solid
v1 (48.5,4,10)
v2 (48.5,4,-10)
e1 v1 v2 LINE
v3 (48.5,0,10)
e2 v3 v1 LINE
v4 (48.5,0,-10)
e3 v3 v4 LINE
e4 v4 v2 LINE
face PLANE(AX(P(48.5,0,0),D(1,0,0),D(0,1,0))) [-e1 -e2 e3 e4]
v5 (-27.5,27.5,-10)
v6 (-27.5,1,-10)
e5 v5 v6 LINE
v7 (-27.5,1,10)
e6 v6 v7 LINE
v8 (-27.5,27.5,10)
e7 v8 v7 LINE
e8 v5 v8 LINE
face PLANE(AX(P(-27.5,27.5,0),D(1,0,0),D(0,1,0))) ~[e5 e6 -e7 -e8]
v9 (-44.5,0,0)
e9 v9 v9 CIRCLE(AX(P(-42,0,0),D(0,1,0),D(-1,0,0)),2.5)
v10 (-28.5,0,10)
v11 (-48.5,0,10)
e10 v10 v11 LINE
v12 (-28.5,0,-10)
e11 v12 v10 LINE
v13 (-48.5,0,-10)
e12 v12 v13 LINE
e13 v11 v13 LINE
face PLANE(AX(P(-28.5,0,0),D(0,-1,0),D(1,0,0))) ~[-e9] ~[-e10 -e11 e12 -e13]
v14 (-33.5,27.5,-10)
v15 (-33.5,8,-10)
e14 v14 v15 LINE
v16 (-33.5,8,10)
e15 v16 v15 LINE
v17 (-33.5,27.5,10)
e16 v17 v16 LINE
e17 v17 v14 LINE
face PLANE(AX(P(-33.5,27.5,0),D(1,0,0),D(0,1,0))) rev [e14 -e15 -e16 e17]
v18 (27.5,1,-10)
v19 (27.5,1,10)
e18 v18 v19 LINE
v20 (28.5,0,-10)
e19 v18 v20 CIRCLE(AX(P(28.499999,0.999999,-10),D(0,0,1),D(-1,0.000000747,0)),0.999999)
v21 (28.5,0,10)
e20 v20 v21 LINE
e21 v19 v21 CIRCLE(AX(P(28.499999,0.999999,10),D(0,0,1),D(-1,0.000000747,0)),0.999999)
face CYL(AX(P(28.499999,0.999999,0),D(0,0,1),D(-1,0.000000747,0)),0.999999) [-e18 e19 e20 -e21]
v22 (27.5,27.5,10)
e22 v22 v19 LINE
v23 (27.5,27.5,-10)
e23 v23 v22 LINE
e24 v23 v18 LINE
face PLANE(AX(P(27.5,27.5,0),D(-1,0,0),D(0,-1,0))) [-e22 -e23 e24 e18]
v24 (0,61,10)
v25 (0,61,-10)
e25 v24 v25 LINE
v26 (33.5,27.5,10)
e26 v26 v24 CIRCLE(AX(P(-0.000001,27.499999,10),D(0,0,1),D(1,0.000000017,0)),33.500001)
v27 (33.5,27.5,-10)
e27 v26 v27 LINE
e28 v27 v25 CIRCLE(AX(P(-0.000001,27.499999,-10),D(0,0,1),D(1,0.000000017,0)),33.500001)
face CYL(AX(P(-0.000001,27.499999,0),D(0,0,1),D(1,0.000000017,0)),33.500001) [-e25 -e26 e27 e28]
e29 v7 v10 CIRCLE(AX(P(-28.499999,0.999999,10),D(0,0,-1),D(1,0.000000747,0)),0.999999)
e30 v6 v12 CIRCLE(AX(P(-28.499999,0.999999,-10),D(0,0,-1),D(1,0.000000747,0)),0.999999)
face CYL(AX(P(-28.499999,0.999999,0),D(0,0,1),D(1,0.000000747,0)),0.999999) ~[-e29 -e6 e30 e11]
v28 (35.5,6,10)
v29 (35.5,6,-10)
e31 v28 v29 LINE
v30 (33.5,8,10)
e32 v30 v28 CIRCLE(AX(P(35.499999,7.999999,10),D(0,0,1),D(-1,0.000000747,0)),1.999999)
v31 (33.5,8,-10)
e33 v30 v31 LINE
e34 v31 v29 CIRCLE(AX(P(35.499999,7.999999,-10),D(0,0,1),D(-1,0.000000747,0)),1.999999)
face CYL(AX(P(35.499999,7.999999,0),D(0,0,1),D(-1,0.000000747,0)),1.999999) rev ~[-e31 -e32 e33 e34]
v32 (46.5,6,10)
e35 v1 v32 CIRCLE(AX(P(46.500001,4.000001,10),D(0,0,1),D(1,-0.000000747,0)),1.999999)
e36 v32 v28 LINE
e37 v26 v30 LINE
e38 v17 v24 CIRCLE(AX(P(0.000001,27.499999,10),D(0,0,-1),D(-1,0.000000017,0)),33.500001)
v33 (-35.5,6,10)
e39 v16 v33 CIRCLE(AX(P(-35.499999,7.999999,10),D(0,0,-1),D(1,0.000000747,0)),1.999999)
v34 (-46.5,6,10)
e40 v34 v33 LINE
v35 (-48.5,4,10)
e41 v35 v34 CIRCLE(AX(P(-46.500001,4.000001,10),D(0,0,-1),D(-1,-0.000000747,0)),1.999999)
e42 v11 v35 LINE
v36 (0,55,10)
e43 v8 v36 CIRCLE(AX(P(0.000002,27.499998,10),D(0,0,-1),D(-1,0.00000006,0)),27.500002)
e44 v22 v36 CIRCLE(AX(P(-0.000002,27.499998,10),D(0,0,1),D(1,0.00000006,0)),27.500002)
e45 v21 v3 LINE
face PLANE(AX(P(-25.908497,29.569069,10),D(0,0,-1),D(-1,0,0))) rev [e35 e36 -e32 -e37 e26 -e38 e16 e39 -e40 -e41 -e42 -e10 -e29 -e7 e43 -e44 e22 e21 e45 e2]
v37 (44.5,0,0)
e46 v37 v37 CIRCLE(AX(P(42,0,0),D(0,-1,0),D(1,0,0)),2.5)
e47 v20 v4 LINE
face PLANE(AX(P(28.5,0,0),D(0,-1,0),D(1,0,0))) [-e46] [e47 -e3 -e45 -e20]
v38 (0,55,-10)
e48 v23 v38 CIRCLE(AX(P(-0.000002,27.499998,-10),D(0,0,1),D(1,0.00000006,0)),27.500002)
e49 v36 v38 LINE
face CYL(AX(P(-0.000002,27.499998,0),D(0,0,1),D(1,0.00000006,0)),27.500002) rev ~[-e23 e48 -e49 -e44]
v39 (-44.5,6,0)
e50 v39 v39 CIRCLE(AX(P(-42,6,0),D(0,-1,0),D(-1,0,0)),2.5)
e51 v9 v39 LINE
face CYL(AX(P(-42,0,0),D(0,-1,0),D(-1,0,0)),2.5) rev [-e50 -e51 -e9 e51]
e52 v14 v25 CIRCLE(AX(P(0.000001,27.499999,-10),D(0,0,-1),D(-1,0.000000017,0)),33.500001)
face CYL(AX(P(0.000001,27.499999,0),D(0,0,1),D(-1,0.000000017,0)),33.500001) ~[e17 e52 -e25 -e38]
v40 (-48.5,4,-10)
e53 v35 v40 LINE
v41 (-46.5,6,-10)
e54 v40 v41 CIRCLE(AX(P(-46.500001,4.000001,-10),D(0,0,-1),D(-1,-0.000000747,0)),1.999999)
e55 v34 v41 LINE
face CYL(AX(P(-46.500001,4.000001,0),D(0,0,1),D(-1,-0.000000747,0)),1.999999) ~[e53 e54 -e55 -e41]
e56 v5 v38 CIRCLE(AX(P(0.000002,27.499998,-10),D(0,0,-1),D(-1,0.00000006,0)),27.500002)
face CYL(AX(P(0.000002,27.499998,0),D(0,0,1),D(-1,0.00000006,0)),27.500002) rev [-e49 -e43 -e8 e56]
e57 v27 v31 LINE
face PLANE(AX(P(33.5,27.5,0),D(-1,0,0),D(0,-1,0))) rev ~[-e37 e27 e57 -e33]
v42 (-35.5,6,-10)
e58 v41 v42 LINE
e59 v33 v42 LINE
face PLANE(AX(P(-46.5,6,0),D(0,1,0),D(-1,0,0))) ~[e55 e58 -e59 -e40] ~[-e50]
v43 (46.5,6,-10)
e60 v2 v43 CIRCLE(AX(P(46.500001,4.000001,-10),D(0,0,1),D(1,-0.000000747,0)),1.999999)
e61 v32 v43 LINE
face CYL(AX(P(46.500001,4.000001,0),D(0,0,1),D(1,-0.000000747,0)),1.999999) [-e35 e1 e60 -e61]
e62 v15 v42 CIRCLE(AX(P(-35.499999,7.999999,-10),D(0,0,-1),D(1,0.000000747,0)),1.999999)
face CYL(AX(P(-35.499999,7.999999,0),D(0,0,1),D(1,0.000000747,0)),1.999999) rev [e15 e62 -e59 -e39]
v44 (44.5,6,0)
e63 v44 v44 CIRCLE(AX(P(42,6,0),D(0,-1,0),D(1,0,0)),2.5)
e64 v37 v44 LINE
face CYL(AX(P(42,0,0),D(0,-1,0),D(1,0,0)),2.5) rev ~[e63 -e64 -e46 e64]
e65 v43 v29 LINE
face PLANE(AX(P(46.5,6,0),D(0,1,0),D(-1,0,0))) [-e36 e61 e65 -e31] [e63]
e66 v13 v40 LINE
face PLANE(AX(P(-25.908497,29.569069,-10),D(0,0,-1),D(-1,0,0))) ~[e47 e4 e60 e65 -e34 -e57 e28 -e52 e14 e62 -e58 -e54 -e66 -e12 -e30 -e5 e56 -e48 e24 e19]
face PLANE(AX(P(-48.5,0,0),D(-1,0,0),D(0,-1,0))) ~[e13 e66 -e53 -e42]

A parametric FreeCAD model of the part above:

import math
import FreeCAD as App
import Part
import Sketcher
from FreeCAD import Vector
Q = App.Units.Quantity

doc = App.newDocument("Part")
body = doc.addObject("PartDesign::Body", "Body")

# Sketch on XY plane
sketch1 = body.newObject("Sketcher::SketchObject", "Sketch")
sketch1.AttachmentSupport = (doc.getObject("XY_Plane"), [""])
sketch1.MapMode = "FlatFace"
sketch1.addGeometry([
    Part.ArcOfCircle(Part.Circle(Vector(0, 27.5, 0), Vector(0, 0, 1), 27.5), math.radians(0), math.radians(90)),  # 0
    Part.LineSegment(Vector(27.5, 27.5, 0), Vector(27.5, 1, 0)),  # 1
    Part.ArcOfCircle(Part.Circle(Vector(28.5, 1, 0), Vector(0, 0, 1), 1), math.radians(180), math.radians(270)),  # 2
    Part.LineSegment(Vector(28.5, 0, 0), Vector(48.5, 0, 0)),  # 3
    Part.LineSegment(Vector(48.5, 0, 0), Vector(48.5, 4, 0)),  # 4
    Part.ArcOfCircle(Part.Circle(Vector(46.5, 4, 0), Vector(0, 0, 1), 2), math.radians(0), math.radians(90)),  # 5
    Part.LineSegment(Vector(46.5, 6, 0), Vector(35.5, 6, 0)),  # 6
    Part.ArcOfCircle(Part.Circle(Vector(35.5, 8, 0), Vector(0, 0, 1), 2), math.radians(180), math.radians(270)),  # 7
    Part.LineSegment(Vector(33.5, 8, 0), Vector(33.5, 27.5, 0)),  # 8
    Part.ArcOfCircle(Part.Circle(Vector(0, 27.5, 0), Vector(0, 0, 1), 33.5), math.radians(0), math.radians(90)),  # 9
    Part.LineSegment(Vector(0, 61, 0), Vector(0, 55, 0)),  # 10
], False)
sketch1.addConstraint([
    Sketcher.Constraint("Tangent", 0, 1, 1, 1),
    Sketcher.Constraint("Tangent", 1, 2, 2, 1),
    Sketcher.Constraint("Tangent", 2, 2, 3, 1),
    Sketcher.Constraint("Coincident", 3, 2, 4, 1),
    Sketcher.Constraint("Tangent", 4, 2, 5, 1),
    Sketcher.Constraint("Tangent", 5, 2, 6, 1),
    Sketcher.Constraint("Tangent", 6, 2, 7, 2),
    Sketcher.Constraint("Tangent", 7, 1, 8, 1),
    Sketcher.Constraint("Tangent", 8, 2, 9, 1),
    Sketcher.Constraint("Coincident", 9, 2, 10, 1),
    Sketcher.Constraint("Coincident", 10, 2, 0, 2),
    Sketcher.Constraint("Vertical", 1),
    Sketcher.Constraint("Horizontal", 3),
    Sketcher.Constraint("Vertical", 4),
    Sketcher.Constraint("Horizontal", 6),
    Sketcher.Constraint("Vertical", 8),
    Sketcher.Constraint("Vertical", 10),
    Sketcher.Constraint("Coincident", 9, 3, 0, 3),
    Sketcher.Constraint("Equal", 5, 7),
    Sketcher.Constraint("PointOnObject", 0, 3, -2),
    Sketcher.Constraint("PointOnObject", 2, 2, -1),
    Sketcher.Constraint("PointOnObject", 9, 2, -2),
    Sketcher.Constraint("Radius", 2, Q("0.999999 mm")),
    Sketcher.Constraint("Radius", 5, Q("1.999999 mm")),
    Sketcher.Constraint("Radius", 0, Q("27.500002 mm")),
    Sketcher.Constraint("Radius", 9, Q("33.500001 mm")),
    Sketcher.Constraint("DistanceX", 3, 1, 3, 2, Q("20 mm")),
    Sketcher.Constraint("DistanceY", 4, 1, 4, 2, Q("4 mm")),
    Sketcher.Constraint("DistanceY", 1, 2, 1, 1, Q("26.5 mm")),
])
pad1 = body.newObject("PartDesign::Pad", "Pad")
pad1.Profile = sketch1
pad1.Length = 20
pad1.Midplane = True
doc.recompute()

mirrored = body.newObject("PartDesign::Mirrored", "Mirrored")
mirrored.Originals = [pad1]
mirrored.MirrorPlane = (doc.getObject("YZ_Plane"), [""])
body.Tip = mirrored

# Sketch on XZ plane
sketch2 = body.newObject("Sketcher::SketchObject", "Sketch001")
sketch2.AttachmentSupport = (doc.getObject("XZ_Plane"), [""])
sketch2.MapMode = "FlatFace"
sketch2.addGeometry(Part.Circle(Vector(42, 0, 0), Vector(0, 0, 1), 2.5), False)
sketch2.addConstraint([
    Sketcher.Constraint("PointOnObject", 0, 3, -1),
    Sketcher.Constraint("Diameter", 0, Q("5 mm")),
    Sketcher.Constraint("DistanceX", -1, 1, 0, 3, Q("42 mm")),
])
pocket1 = body.newObject("PartDesign::Pocket", "Pocket")
pocket1.Profile = sketch2
pocket1.Type = "ThroughAll"

# Sketch on XZ plane
sketch3 = body.newObject("Sketcher::SketchObject", "Sketch002")
sketch3.AttachmentSupport = (doc.getObject("XZ_Plane"), [""])
sketch3.MapMode = "FlatFace"
sketch3.addGeometry(Part.Circle(Vector(42, 0, 0), Vector(0, 0, 1), 2.5), False)
sketch3.addConstraint([
    Sketcher.Constraint("PointOnObject", 0, 3, -1),
    Sketcher.Constraint("Diameter", 0, Q("5 mm")),
    Sketcher.Constraint("DistanceX", -1, 1, 0, 3, Q("42 mm")),
])
pocket2 = body.newObject("PartDesign::Pocket", "Pocket001")
pocket2.Profile = sketch3
pocket2.Type = "ThroughAll"
doc.recompute()

mirrored2 = body.newObject("PartDesign::Mirrored", "Mirrored001")
mirrored2.Originals = [pocket1, pocket2]
mirrored2.MirrorPlane = (doc.getObject("YZ_Plane"), [""])
body.Tip = mirrored2

doc.recompute()
